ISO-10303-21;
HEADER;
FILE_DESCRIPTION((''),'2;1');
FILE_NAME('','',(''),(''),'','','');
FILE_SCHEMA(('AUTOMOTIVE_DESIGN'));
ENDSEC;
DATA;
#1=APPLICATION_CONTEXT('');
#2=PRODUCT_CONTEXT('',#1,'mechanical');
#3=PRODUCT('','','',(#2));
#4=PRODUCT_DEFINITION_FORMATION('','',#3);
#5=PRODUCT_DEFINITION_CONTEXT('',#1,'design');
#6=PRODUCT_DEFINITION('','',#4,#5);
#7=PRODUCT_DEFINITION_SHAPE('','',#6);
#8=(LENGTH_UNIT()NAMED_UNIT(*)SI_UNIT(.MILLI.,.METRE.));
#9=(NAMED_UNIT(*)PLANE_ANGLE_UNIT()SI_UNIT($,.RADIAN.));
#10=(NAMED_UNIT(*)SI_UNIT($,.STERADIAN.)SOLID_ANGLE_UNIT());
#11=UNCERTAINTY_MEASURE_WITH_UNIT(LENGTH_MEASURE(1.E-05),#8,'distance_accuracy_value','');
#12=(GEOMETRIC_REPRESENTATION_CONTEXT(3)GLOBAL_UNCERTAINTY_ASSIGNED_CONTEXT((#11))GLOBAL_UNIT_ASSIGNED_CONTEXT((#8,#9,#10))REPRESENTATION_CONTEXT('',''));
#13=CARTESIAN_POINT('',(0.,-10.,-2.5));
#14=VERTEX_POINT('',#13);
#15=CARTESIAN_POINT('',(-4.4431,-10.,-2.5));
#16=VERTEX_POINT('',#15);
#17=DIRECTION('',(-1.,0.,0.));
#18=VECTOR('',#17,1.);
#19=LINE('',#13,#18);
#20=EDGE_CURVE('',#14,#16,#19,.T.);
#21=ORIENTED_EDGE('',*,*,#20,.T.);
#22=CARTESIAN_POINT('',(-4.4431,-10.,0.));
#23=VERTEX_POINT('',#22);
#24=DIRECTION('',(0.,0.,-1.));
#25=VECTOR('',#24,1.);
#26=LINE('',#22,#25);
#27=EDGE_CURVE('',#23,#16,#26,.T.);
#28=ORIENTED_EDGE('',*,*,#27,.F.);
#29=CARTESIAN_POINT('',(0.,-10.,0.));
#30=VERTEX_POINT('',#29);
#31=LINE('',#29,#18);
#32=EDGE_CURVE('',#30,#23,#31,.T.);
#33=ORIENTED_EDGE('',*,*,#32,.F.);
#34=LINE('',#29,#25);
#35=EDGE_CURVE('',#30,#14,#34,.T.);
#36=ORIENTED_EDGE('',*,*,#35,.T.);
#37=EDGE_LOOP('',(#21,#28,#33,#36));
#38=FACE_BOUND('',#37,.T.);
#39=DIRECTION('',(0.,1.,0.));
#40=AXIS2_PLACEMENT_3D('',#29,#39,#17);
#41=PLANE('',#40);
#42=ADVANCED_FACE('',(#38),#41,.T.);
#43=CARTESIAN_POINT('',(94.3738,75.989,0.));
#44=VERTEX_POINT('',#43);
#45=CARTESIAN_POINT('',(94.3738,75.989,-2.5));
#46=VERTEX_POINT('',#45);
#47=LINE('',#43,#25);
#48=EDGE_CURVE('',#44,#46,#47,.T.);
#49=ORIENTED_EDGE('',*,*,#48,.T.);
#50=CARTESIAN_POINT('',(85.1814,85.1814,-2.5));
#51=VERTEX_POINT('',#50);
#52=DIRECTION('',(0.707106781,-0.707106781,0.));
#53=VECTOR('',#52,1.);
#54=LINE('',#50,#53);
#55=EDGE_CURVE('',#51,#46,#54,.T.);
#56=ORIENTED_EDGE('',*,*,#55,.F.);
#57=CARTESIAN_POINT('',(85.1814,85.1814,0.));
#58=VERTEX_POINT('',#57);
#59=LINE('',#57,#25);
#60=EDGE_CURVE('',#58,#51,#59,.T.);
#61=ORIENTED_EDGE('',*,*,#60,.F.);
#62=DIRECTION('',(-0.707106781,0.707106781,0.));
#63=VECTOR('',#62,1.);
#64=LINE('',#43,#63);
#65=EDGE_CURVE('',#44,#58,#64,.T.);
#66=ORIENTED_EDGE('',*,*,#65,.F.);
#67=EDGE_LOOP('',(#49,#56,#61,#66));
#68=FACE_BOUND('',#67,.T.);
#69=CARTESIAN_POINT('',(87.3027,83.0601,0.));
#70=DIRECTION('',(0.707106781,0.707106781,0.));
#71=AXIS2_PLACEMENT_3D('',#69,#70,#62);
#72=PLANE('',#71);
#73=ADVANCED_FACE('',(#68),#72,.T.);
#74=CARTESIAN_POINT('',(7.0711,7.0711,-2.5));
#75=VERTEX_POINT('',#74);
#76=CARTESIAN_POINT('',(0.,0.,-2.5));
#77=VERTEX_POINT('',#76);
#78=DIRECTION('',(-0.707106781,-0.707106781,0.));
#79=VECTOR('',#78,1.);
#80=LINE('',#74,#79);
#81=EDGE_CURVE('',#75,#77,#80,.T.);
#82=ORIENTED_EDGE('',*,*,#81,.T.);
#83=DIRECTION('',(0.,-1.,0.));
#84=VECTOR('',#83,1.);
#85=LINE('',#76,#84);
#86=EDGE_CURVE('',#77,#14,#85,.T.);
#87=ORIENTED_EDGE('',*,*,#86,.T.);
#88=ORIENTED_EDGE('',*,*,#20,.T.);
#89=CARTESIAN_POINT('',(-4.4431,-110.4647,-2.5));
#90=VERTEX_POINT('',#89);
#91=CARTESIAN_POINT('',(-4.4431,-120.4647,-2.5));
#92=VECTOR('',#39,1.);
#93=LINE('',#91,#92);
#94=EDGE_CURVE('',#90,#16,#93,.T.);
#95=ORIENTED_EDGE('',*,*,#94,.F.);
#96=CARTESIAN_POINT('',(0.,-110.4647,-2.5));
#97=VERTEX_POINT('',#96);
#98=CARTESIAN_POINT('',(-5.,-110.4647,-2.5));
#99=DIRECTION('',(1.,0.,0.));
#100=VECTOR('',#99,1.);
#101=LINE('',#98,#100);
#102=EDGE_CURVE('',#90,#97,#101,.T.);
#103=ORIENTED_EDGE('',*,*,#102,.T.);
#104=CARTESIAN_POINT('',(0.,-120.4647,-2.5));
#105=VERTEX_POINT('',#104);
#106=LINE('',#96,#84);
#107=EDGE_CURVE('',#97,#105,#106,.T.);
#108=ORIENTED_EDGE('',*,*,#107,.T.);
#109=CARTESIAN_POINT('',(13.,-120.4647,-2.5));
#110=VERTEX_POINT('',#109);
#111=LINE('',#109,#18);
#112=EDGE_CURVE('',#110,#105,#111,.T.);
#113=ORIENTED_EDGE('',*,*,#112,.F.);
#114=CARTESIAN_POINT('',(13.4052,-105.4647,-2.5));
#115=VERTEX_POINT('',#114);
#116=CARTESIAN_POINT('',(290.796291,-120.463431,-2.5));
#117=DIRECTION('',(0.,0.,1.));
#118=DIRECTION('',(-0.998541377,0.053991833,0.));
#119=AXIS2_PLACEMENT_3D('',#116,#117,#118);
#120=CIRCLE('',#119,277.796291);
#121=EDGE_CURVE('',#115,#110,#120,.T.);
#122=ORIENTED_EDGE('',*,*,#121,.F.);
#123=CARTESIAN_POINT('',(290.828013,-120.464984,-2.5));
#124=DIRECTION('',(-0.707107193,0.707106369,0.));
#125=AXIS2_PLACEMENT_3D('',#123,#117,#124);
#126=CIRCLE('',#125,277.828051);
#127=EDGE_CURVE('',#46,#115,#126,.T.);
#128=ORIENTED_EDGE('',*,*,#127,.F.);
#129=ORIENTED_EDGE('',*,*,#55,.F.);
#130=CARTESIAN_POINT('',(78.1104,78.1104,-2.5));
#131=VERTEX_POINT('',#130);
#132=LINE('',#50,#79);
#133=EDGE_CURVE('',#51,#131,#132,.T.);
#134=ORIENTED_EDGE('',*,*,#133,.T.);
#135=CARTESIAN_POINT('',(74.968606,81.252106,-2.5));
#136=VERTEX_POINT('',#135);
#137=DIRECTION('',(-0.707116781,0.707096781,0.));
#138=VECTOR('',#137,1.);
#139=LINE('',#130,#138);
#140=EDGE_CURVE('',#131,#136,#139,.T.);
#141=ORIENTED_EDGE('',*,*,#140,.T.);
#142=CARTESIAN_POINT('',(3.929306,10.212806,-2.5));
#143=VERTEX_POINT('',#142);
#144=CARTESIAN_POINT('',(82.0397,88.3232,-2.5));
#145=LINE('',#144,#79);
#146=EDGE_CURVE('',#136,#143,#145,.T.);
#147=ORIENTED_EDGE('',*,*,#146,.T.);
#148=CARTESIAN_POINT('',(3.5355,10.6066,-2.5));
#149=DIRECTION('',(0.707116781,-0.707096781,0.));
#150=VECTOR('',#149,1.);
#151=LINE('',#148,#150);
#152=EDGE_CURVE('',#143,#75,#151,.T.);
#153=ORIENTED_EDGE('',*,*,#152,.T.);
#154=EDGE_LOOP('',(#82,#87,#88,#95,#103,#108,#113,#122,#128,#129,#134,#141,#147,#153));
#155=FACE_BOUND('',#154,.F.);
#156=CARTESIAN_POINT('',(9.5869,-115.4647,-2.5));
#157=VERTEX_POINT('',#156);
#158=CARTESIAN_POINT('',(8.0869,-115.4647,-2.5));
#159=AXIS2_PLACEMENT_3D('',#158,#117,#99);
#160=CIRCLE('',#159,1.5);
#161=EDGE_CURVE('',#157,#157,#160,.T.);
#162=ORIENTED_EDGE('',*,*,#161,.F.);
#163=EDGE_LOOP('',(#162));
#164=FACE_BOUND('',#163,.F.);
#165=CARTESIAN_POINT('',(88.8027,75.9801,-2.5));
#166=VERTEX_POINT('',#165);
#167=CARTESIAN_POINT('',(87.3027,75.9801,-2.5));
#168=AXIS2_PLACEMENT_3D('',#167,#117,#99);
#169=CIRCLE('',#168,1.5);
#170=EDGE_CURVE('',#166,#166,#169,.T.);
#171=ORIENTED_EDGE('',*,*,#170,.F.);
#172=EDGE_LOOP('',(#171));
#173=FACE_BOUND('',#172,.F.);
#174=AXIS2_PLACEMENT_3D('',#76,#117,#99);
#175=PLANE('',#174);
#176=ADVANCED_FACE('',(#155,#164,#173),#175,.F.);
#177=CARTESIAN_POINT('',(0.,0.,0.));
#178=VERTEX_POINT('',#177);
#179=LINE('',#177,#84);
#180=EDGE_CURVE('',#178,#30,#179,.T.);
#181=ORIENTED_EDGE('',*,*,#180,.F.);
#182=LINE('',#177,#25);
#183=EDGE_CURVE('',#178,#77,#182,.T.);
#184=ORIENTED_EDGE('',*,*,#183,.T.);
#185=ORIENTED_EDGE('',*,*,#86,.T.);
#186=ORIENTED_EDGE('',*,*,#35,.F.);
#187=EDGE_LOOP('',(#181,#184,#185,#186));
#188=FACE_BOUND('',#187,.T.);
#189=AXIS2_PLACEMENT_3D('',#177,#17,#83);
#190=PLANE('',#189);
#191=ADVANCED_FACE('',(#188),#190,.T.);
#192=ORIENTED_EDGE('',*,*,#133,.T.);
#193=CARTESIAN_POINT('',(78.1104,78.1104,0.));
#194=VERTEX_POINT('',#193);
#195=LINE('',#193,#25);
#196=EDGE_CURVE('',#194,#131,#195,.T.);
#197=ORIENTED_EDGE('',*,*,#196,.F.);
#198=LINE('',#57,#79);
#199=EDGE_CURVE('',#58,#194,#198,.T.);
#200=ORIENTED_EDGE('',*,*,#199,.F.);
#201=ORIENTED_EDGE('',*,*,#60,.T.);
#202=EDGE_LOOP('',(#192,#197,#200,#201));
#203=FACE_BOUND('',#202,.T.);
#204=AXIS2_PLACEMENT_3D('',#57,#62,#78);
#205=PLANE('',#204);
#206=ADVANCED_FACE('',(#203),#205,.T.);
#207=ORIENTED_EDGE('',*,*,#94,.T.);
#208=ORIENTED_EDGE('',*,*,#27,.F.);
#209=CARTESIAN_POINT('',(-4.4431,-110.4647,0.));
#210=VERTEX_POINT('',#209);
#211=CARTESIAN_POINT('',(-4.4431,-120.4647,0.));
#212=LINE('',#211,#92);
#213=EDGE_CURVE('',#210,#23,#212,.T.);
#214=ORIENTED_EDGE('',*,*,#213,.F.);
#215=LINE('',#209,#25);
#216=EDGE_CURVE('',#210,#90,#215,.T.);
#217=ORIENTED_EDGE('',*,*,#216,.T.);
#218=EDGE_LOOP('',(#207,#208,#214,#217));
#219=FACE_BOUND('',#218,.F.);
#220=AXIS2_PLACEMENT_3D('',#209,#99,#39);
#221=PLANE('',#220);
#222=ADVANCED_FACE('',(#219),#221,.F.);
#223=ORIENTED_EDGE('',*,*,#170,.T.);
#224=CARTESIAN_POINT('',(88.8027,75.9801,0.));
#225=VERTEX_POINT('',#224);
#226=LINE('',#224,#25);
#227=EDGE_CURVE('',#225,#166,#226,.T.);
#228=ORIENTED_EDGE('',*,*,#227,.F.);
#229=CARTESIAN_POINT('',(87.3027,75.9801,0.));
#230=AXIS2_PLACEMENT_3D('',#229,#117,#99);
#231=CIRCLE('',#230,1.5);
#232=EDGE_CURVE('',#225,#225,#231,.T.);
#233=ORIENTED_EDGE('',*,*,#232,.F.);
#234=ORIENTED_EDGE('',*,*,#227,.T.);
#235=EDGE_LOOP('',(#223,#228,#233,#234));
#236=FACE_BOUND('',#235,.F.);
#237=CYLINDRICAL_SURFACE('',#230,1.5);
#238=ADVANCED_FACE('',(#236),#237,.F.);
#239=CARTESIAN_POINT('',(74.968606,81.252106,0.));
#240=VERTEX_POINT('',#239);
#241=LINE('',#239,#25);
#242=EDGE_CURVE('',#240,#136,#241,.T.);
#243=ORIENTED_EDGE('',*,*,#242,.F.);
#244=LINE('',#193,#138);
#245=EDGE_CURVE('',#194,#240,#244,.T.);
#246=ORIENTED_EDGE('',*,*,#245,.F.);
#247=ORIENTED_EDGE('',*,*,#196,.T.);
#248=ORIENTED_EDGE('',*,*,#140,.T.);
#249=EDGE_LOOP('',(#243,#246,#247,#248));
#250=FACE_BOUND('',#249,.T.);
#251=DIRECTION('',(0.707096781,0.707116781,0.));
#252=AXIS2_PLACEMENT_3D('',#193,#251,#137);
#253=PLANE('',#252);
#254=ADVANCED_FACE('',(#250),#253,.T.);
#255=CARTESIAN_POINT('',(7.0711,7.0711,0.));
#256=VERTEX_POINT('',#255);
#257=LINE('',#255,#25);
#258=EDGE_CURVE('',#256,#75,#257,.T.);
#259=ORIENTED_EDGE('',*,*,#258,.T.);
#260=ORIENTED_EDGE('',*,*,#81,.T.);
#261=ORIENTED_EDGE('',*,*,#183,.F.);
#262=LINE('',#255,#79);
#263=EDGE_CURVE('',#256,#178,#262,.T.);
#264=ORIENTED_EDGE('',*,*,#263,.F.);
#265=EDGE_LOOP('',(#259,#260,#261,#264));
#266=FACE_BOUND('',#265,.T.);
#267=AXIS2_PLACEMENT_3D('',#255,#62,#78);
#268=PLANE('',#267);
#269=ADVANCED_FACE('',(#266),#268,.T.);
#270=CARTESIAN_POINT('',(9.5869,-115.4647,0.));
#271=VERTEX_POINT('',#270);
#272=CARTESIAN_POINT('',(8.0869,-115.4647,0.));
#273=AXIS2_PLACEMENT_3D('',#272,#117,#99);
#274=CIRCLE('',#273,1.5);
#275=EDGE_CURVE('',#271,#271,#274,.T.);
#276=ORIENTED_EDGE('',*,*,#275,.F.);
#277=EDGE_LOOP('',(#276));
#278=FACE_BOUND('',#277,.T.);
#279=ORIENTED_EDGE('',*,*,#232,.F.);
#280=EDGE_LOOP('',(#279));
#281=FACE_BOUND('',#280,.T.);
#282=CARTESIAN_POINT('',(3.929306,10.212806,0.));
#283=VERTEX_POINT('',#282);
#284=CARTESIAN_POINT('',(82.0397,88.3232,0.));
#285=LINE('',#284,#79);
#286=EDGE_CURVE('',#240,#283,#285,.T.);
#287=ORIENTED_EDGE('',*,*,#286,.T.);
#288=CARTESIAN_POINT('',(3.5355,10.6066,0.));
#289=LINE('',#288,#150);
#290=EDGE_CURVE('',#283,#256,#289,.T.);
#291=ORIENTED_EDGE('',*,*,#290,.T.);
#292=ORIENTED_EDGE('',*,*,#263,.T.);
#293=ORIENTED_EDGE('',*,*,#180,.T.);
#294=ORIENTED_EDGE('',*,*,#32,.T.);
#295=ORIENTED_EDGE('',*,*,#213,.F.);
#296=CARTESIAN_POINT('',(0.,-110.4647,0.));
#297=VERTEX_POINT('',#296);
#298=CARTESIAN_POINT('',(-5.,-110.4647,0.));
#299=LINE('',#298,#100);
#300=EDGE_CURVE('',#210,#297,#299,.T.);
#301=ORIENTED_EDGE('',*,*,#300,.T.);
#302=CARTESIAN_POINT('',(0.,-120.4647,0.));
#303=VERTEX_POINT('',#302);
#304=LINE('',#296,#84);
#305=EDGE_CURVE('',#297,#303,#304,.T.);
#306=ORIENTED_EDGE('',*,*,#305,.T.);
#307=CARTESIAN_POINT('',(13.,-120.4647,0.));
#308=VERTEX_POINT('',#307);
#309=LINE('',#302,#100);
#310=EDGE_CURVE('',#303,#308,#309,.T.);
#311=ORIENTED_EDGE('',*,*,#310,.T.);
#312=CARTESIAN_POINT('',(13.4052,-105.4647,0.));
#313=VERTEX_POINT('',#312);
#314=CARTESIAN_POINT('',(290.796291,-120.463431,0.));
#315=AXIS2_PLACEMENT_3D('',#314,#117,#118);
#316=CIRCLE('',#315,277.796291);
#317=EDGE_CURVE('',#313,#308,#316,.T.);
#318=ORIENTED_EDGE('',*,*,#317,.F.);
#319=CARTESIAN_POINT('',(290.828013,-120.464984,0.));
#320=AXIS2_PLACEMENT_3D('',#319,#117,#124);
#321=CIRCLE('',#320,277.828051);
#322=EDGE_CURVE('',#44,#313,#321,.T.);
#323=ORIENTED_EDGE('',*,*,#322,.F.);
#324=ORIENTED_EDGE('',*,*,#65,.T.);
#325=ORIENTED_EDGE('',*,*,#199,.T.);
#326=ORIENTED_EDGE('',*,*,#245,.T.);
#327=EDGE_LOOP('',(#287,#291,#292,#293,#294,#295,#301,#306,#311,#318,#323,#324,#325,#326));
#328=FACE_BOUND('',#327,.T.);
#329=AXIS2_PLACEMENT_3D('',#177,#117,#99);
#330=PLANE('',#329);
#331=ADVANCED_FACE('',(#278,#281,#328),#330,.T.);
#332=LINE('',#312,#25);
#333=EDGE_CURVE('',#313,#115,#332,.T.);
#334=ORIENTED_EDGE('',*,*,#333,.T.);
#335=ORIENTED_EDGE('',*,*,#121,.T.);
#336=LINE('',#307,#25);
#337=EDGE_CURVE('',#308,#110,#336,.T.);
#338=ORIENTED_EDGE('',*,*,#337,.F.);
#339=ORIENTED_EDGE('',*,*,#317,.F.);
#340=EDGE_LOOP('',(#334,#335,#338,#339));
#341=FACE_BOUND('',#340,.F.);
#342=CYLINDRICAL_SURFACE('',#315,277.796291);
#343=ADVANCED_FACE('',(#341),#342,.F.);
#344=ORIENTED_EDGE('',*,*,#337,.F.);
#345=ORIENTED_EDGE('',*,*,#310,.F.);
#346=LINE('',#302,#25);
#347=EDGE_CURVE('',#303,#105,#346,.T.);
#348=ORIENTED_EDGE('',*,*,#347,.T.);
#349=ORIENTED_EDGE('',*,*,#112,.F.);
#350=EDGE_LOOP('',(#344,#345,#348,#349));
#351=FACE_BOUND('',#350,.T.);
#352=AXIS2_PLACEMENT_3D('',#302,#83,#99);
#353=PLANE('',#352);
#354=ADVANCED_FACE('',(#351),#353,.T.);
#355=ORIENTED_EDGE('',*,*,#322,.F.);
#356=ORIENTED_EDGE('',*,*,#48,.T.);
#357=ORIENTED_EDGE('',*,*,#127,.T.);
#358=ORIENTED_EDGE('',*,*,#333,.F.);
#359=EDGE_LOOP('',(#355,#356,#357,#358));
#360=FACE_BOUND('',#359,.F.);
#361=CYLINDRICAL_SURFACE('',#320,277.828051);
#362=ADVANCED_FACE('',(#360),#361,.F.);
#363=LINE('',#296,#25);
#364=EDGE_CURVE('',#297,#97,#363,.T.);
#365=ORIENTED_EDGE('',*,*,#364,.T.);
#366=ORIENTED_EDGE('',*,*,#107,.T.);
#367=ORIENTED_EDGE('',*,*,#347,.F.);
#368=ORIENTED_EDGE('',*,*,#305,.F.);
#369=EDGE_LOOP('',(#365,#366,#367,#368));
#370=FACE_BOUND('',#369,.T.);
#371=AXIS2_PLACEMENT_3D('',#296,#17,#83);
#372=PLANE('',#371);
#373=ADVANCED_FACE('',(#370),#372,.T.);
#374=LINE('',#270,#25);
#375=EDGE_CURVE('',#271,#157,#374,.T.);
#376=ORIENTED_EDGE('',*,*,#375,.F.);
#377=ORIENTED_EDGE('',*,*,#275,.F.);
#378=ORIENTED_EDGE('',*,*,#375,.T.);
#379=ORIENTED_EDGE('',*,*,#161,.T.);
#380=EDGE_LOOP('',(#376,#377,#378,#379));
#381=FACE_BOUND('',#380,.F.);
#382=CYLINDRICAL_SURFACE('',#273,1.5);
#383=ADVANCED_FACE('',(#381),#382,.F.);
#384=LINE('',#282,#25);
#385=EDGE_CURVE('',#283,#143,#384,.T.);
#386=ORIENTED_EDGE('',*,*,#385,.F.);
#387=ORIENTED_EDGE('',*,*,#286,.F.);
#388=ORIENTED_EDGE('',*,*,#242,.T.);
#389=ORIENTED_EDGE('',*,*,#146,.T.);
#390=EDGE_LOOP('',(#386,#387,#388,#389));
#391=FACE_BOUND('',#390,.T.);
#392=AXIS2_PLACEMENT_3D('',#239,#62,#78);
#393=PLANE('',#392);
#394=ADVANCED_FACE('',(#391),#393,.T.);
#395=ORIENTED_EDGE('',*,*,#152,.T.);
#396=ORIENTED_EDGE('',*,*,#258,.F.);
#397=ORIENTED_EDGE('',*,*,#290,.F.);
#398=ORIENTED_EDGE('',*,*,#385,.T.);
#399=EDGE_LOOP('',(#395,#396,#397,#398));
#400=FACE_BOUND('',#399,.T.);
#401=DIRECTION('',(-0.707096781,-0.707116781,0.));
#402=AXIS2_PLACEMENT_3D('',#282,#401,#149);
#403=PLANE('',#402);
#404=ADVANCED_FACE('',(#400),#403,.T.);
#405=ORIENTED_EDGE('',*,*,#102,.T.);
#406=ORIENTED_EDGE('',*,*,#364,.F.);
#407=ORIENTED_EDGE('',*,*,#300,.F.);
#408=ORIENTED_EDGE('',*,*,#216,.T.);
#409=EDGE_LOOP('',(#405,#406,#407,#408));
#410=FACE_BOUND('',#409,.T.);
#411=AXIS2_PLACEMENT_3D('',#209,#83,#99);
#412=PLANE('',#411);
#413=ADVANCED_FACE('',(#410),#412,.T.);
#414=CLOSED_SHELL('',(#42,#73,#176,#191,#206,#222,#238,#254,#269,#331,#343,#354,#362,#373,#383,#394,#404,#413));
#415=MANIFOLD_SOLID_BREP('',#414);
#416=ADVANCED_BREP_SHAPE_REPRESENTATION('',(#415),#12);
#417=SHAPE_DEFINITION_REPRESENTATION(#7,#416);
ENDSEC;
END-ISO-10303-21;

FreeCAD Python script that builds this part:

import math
import FreeCAD as App
import Part
import Sketcher

V = App.Vector
Q = App.Units.Quantity

doc = App.newDocument("Part")
body = doc.addObject("PartDesign::Body", "Body")

sketch1 = body.newObject("Sketcher::SketchObject", "Sketch")
sketch1.AttachmentSupport = (doc.getObject("XY_Plane"), [""])
sketch1.MapMode = "FlatFace"
sketch1.addGeometry([
    Part.LineSegment(V(7.1, 7.1, 0), V(0, 0, 0)),
    Part.LineSegment(V(0, 0, 0), V(0, -10, 0)),
    Part.LineSegment(V(0, -10, 0), V(-4.4, -10, 0)),
    Part.LineSegment(V(-4.4, -10, 0), V(-4.4, -110.5, 0)),
    Part.LineSegment(V(-4.4, -110.5, 0), V(0, -110.5, 0)),
    Part.LineSegment(V(0, -110.5, 0), V(0, -120.5, 0)),
    Part.LineSegment(V(0, -120.5, 0), V(13, -120.5, 0)),
    Part.ArcOfCircle(Part.Circle(V(290.8, -120.5, 0), V(0, 0, 1), 277.8), math.radians(176.9), math.radians(180)),
    Part.ArcOfCircle(Part.Circle(V(290.8, -120.5, 0), V(0, 0, 1), 277.8), math.radians(135), math.radians(177)),
    Part.LineSegment(V(94.4, 76, 0), V(85.2, 85.2, 0)),
    Part.LineSegment(V(85.2, 85.2, 0), V(78.1, 78.1, 0)),
    Part.LineSegment(V(78.1, 78.1, 0), V(75, 81.3, 0)),
    Part.LineSegment(V(75, 81.3, 0), V(3.9, 10.2, 0)),
    Part.LineSegment(V(3.9, 10.2, 0), V(7.1, 7.1, 0)),
], False)
sketch1.addConstraint([
    Sketcher.Constraint("Coincident", 0, 2, 1, 1),
    Sketcher.Constraint("Coincident", 1, 2, 2, 1),
    Sketcher.Constraint("Coincident", 2, 2, 3, 1),
    Sketcher.Constraint("Coincident", 3, 2, 4, 1),
    Sketcher.Constraint("Coincident", 4, 2, 5, 1),
    Sketcher.Constraint("Coincident", 5, 2, 6, 1),
    Sketcher.Constraint("Coincident", 6, 2, 7, 2),
    Sketcher.Constraint("Tangent", 7, 1, 8, 2),
    Sketcher.Constraint("Coincident", 8, 1, 9, 1),
    Sketcher.Constraint("Coincident", 9, 2, 10, 1),
    Sketcher.Constraint("Coincident", 10, 2, 11, 1),
    Sketcher.Constraint("Coincident", 11, 2, 12, 1),
    Sketcher.Constraint("Coincident", 12, 2, 13, 1),
    Sketcher.Constraint("Coincident", 13, 2, 0, 1),
    Sketcher.Constraint("Vertical", 1),
    Sketcher.Constraint("Horizontal", 2),
    Sketcher.Constraint("Vertical", 3),
    Sketcher.Constraint("Horizontal", 4),
    Sketcher.Constraint("Vertical", 5),
    Sketcher.Constraint("Horizontal", 6),
    Sketcher.Constraint("Coincident", 0, 2, -1, 1),
    Sketcher.Constraint("PointOnObject", 4, 2, -2),
    Sketcher.Constraint("Perpendicular", 0, 9),
    Sketcher.Constraint("Perpendicular", 9, 10),
    Sketcher.Constraint("Perpendicular", 10, 11),
    Sketcher.Constraint("Perpendicular", 11, 12),
    Sketcher.Constraint("Perpendicular", 12, 13),
    Sketcher.Constraint("Horizontal", 8, 3, 5, 2),
    Sketcher.Constraint("Equal", 1, 5),
    Sketcher.Constraint("Equal", 0, 10),
    Sketcher.Constraint("Equal", 11, 13),
    Sketcher.Constraint("DistanceX", 6, 1, 6, 2, Q("13 mm")),
    Sketcher.Constraint("DistanceY", 1, 2, 1, 1, Q("10 mm")),
    Sketcher.Constraint("Angle", 0, Q("-135 deg")),
    Sketcher.Constraint("Distance", 0, Q("10 mm")),
    Sketcher.Constraint("Distance", 9, Q("13 mm")),
    Sketcher.Constraint("DistanceY", 4, 2, 7, 1, Q("5 mm")),
    Sketcher.Constraint("Radius", 7, Q("277.7963 mm")),
    Sketcher.Constraint("Radius", 8, Q("277.8276 mm")),
    Sketcher.Constraint("DistanceX", 2, 2, 2, 1, Q("4.443 mm")),
    Sketcher.Constraint("Distance", 11, Q("4.443 mm")),
    Sketcher.Constraint("DistanceY", -1, 1, 11, 2, Q("81.252 mm")),
])
pad1 = body.newObject("PartDesign::Pad", "Pad")
pad1.Profile = sketch1
pad1.Length = 2.5
pad1.Reversed = True

sketch2 = body.newObject("Sketcher::SketchObject", "Sketch001")
sketch2.AttachmentSupport = (doc.getObject("XY_Plane"), [""])
sketch2.MapMode = "FlatFace"
sketch2.addGeometry([
    Part.Circle(V(8.1, -115.5, 0), V(0, 0, 1), 1.5),
    Part.Circle(V(87.3, 76, 0), V(0, 0, 1), 1.5),
], False)
sketch2.addConstraint([
    Sketcher.Constraint("Equal", 0, 1),
    Sketcher.Constraint("Diameter", 0, Q("3 mm")),
    Sketcher.Constraint("DistanceY", -1, 1, 1, 3, Q("75.98 mm")),
    Sketcher.Constraint("DistanceX", -1, 1, 0, 3, Q("8.087 mm")),
    Sketcher.Constraint("DistanceY", 0, 3, -1, 1, Q("115.4647 mm")),
    Sketcher.Constraint("DistanceX", -1, 1, 1, 3, Q("87.3027 mm")),
])
pocket1 = body.newObject("PartDesign::Pocket", "Pocket")
pocket1.Profile = sketch2
pocket1.Length = 10

doc.recompute()
